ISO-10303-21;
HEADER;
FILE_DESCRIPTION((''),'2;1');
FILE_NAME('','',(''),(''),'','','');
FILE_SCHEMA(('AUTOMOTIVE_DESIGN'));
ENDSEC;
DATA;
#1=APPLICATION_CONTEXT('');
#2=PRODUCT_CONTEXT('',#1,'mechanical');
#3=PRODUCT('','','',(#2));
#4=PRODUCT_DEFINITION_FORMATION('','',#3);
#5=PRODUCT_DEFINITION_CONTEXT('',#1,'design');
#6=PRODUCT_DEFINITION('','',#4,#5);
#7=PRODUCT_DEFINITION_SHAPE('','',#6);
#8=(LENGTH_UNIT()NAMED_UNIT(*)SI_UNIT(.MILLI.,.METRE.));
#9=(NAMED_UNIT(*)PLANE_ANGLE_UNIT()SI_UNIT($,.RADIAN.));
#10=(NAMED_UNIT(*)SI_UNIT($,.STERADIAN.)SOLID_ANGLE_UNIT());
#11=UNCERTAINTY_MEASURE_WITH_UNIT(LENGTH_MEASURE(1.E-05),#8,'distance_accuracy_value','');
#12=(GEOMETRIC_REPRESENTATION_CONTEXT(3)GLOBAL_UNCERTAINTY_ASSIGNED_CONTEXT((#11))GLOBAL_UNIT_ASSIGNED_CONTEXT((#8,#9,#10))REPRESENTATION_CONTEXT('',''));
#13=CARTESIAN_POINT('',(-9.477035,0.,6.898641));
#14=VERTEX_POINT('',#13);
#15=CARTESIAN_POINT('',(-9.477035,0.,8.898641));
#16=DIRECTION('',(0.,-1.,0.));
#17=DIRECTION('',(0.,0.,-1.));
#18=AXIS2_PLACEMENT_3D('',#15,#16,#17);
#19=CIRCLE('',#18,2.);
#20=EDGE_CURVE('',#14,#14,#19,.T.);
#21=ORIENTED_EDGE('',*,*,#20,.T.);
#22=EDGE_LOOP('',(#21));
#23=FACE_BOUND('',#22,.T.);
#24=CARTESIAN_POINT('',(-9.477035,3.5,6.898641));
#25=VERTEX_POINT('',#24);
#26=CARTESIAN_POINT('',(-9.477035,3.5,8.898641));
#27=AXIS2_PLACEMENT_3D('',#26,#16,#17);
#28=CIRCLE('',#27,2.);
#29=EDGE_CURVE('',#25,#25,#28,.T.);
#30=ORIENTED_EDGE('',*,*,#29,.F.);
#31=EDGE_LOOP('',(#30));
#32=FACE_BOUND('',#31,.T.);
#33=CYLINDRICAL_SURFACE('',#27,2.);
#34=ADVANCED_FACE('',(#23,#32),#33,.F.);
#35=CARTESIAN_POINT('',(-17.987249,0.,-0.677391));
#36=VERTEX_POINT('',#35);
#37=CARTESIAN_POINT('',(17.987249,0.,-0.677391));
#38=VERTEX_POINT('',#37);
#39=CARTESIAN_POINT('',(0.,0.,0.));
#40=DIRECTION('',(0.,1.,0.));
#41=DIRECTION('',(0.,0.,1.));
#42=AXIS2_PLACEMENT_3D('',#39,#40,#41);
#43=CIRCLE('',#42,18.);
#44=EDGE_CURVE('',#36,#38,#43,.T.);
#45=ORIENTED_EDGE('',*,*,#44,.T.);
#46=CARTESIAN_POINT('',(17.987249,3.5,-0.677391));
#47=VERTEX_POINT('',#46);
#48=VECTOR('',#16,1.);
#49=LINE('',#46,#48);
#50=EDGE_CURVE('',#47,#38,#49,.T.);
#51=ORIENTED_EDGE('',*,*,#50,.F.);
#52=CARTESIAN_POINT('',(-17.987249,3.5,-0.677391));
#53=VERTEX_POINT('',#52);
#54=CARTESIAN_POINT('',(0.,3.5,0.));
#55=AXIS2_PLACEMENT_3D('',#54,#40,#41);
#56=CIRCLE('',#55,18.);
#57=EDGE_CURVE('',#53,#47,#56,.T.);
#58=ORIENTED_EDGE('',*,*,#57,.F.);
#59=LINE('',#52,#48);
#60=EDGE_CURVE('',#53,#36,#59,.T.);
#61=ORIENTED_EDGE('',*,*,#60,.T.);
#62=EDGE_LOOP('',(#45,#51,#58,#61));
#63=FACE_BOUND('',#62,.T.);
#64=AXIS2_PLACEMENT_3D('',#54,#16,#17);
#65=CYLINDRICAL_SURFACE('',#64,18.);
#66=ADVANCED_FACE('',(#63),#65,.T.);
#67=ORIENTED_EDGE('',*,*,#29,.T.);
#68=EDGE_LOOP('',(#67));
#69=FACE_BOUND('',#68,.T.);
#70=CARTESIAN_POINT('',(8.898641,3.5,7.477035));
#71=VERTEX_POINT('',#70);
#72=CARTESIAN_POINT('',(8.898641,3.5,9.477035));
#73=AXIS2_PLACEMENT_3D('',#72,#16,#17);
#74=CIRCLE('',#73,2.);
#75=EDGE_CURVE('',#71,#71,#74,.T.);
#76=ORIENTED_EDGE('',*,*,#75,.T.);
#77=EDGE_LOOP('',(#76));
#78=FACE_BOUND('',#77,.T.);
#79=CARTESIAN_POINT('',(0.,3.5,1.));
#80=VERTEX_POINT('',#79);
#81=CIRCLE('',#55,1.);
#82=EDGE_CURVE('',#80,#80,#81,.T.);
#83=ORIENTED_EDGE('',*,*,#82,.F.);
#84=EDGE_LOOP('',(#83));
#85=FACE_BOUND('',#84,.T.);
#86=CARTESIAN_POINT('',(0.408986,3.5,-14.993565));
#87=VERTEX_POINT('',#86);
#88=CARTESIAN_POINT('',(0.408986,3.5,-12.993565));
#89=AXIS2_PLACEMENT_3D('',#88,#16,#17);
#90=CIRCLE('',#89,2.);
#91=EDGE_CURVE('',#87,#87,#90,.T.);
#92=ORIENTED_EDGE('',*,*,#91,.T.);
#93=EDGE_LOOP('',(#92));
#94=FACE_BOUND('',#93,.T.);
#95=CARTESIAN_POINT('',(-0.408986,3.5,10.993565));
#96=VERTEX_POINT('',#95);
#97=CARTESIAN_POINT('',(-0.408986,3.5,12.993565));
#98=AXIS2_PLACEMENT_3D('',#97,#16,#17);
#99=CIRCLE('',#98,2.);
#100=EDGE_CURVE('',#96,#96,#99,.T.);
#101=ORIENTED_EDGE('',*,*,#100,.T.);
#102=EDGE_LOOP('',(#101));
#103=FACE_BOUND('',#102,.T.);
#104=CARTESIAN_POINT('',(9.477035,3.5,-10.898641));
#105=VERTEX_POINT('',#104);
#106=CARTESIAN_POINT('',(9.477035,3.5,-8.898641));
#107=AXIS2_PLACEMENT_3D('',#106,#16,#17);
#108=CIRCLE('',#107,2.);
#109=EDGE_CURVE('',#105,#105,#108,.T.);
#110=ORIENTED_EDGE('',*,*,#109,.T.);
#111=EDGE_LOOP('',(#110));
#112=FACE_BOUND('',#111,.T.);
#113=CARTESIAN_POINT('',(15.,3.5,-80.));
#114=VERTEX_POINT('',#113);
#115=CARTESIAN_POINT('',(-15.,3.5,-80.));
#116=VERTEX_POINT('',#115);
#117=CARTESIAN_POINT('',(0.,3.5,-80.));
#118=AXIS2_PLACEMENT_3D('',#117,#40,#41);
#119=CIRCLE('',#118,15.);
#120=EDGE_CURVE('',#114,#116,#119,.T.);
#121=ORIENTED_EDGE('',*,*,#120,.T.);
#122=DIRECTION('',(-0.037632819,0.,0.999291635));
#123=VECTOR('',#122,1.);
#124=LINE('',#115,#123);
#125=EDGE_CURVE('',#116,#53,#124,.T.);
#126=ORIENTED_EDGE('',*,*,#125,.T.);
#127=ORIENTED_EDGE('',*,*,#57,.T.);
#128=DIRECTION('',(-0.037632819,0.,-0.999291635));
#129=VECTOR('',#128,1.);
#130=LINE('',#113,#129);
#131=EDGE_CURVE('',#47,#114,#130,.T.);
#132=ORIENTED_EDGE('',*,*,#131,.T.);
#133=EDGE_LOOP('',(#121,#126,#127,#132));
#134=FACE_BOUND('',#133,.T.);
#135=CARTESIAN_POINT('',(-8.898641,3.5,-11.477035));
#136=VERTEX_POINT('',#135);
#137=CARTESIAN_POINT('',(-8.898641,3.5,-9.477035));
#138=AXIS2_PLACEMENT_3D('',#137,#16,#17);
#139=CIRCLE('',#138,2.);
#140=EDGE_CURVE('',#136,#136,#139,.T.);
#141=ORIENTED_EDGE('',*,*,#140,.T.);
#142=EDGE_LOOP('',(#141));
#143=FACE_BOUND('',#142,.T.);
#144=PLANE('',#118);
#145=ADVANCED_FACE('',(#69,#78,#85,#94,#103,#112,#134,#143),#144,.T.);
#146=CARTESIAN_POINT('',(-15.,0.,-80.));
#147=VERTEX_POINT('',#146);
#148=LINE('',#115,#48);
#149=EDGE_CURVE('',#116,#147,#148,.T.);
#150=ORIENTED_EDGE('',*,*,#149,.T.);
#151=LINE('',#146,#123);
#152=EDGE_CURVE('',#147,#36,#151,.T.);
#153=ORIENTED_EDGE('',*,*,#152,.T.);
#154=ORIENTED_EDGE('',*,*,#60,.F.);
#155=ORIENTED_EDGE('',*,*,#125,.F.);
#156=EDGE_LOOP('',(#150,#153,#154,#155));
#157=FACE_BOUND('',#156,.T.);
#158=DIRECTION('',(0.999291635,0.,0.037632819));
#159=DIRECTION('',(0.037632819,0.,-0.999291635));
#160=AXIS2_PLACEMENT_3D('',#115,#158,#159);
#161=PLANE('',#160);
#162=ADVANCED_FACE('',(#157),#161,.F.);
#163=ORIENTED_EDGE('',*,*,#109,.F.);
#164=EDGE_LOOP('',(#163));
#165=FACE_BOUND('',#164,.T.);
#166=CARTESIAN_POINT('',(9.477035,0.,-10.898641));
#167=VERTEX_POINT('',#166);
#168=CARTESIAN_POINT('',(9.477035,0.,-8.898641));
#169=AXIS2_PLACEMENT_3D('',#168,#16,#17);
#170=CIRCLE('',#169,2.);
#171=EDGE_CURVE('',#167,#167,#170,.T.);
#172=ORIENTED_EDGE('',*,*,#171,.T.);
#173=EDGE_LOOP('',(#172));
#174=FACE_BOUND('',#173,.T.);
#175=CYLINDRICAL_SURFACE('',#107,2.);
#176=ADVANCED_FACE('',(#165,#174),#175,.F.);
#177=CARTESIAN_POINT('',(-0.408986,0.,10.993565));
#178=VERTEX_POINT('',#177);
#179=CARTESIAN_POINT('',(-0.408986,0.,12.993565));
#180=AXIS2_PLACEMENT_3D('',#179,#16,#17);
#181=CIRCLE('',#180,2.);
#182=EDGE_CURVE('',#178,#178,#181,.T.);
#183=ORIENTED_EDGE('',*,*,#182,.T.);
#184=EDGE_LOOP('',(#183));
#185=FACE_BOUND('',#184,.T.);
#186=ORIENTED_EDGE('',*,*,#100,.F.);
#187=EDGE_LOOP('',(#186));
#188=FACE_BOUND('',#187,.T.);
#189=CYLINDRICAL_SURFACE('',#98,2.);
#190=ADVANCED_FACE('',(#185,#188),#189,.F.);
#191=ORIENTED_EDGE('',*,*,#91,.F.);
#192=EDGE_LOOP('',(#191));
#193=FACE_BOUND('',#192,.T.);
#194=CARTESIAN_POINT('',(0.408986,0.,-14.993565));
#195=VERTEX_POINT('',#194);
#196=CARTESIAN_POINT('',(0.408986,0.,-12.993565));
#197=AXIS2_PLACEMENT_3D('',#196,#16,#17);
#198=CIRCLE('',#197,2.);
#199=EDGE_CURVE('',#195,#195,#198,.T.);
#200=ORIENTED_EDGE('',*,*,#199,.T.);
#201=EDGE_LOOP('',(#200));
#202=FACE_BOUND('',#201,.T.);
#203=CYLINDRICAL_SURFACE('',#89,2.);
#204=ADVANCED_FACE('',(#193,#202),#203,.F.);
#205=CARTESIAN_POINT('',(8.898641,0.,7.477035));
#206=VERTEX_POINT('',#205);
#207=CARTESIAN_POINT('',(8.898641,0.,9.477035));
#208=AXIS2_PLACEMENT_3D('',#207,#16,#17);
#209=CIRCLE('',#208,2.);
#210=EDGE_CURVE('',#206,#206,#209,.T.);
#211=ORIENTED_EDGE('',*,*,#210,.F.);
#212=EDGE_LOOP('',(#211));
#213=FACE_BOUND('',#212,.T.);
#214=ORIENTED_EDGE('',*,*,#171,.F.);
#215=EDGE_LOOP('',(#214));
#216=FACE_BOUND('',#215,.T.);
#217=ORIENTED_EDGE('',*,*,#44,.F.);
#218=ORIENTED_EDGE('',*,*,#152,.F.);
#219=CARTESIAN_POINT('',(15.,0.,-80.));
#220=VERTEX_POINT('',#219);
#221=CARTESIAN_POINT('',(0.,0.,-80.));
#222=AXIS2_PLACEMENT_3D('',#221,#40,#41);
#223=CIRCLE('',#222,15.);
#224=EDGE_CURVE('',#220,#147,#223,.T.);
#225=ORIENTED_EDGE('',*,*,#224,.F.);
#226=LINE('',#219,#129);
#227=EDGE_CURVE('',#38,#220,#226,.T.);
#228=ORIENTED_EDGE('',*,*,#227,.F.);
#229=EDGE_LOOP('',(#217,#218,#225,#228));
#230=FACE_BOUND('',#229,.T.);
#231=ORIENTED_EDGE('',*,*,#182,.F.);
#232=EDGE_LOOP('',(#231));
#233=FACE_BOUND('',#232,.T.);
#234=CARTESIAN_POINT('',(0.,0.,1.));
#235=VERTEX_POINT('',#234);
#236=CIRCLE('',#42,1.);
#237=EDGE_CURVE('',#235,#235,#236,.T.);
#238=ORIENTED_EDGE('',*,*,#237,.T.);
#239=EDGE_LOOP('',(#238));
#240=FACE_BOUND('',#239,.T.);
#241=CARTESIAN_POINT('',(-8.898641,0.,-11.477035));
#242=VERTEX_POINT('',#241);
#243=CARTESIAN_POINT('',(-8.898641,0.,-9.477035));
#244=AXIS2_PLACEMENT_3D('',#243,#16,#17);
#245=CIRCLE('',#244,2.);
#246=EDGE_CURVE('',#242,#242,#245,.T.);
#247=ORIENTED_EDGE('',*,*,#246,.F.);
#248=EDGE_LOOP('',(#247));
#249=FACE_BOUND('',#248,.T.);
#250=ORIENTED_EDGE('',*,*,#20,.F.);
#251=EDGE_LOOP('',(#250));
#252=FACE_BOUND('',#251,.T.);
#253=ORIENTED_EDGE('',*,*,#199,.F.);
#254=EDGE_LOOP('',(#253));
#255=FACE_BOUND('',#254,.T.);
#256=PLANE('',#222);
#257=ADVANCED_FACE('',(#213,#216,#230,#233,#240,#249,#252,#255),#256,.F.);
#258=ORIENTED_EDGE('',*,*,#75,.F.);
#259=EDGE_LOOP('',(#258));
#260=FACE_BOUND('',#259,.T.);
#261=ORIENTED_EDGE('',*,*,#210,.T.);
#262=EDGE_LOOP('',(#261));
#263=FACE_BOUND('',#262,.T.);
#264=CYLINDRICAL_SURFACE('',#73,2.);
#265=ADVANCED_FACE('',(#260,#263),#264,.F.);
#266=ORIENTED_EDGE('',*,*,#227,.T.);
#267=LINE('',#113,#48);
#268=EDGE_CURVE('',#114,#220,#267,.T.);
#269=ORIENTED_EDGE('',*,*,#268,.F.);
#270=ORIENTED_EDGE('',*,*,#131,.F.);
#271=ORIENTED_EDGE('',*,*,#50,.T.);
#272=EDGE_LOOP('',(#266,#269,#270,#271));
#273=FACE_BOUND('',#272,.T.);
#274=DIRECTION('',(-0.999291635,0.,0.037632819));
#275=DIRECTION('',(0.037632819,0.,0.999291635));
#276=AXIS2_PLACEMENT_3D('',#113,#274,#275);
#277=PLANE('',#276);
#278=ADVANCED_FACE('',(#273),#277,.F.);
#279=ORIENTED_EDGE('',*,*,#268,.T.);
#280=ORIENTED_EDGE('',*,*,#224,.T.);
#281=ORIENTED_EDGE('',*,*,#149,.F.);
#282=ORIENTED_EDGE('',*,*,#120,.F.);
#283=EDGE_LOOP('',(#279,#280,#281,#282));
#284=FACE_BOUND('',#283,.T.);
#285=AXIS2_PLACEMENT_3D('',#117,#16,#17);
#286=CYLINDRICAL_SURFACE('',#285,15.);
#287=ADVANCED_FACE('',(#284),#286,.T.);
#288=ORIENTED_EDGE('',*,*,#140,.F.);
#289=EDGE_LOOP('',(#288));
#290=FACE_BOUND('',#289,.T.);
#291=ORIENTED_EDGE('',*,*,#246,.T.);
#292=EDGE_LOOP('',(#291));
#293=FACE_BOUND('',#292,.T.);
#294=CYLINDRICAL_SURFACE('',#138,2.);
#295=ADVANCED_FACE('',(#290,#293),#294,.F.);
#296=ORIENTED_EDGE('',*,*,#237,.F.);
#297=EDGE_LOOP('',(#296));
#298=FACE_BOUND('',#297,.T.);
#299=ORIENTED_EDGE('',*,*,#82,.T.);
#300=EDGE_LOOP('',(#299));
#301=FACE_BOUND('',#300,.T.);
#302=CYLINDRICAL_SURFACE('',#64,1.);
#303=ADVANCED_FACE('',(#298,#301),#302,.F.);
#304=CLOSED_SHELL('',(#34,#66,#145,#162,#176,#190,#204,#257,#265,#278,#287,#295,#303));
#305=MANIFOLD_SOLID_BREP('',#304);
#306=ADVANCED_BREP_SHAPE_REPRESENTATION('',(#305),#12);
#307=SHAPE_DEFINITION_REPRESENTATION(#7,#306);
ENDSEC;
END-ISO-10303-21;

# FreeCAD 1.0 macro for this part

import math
import FreeCAD as App
import Part
import Sketcher
Q = App.Units.Quantity

doc = App.newDocument("Part")
params = doc.addObject("Spreadsheet::Sheet", "Params")
for row, (alias, value) in enumerate([
    ("sketch1_diameter", "2 mm"),
    ("sketch1_radius", "18 mm"),
    ("sketch1_radius2", "15 mm"),
    ("pad1_length", "3.5 mm"),
    ("sketch2_diameter", "4 mm"),
], start=1):
    params.set(f"A{row}", alias)
    params.set(f"B{row}", "=" + value)
    params.setAlias(f"B{row}", alias)

body = doc.addObject("PartDesign::Body", "Body")

# Sketch on XZ plane
sketch1 = body.newObject("Sketcher::SketchObject", "Sketch")
sketch1.AttachmentSupport = (doc.getObject("XZ_Plane"), [""])
sketch1.MapMode = "FlatFace"
sketch1.addGeometry([
    Part.LineSegment(App.Vector(-15, -80, 0), App.Vector(-17.987249, -0.677391, 0)),  # 0
    Part.ArcOfCircle(Part.Circle(App.Vector(0, 0, 0), App.Vector(0, 0, 1), 18), math.radians(-2.156711), math.radians(182.156711)),  # 1
    Part.LineSegment(App.Vector(17.987249, -0.677391, 0), App.Vector(15, -80, 0)),  # 2
    Part.ArcOfCircle(Part.Circle(App.Vector(0, -80, 0), App.Vector(0, 0, 1), 15), math.radians(180), math.radians(360)),  # 3
    Part.Circle(App.Vector(0, 0, 0), App.Vector(0, 0, 1), 1),  # 4
], False)
sketch1.addConstraint([
    Sketcher.Constraint("Tangent", 0, 2, 1, 2),
    Sketcher.Constraint("Tangent", 1, 1, 2, 1),
    Sketcher.Constraint("Coincident", 2, 2, 3, 2),
    Sketcher.Constraint("Coincident", 3, 1, 0, 1),
    Sketcher.Constraint("Coincident", 1, 3, -1, 1),
    Sketcher.Constraint("Coincident", 4, 3, -1, 1),
    Sketcher.Constraint("Symmetric", 2, 2, 3, 1, -2),
    Sketcher.Constraint("Horizontal", 3, 3, 2, 2),
    Sketcher.Constraint("Diameter", 4, Q("2 mm")),
    Sketcher.Constraint("Radius", 1, Q("18 mm")),
    Sketcher.Constraint("Radius", 3, Q("15 mm")),
    Sketcher.Constraint("DistanceY", 3, 3, -1, 1, Q("80 mm")),
])
sketch1.setExpression("Constraints[8]", "Params.sketch1_diameter")
sketch1.setExpression("Constraints[9]", "Params.sketch1_radius")
sketch1.setExpression("Constraints[10]", "Params.sketch1_radius2")
pad1 = body.newObject("PartDesign::Pad", "Pad")
pad1.Profile = sketch1
pad1.setExpression("Length", "Params.pad1_length")
pad1.Reversed = True

# Sketch on XZ plane
sketch2 = body.newObject("Sketcher::SketchObject", "Sketch001")
sketch2.AttachmentSupport = (doc.getObject("XZ_Plane"), [""])
sketch2.MapMode = "FlatFace"
sketch2.addGeometry([
    Part.Circle(App.Vector(-0.408986, 12.993565, 0), App.Vector(0, 0, 1), 2),  # 0
    Part.Circle(App.Vector(-9.477035, 8.898641, 0), App.Vector(0, 0, 1), 2),  # 1
    Part.Circle(App.Vector(8.898641, 9.477035, 0), App.Vector(0, 0, 1), 2),  # 2
    Part.Circle(App.Vector(9.477035, -8.898641, 0), App.Vector(0, 0, 1), 2),  # 3
    Part.Circle(App.Vector(0.408986, -12.993565, 0), App.Vector(0, 0, 1), 2),  # 4
    Part.Circle(App.Vector(-8.898641, -9.477035, 0), App.Vector(0, 0, 1), 2),  # 5
], False)
sketch2.addConstraint([
    Sketcher.Constraint("Equal", 0, 1),
    Sketcher.Constraint("Equal", 1, 2),
    Sketcher.Constraint("Equal", 2, 3),
    Sketcher.Constraint("Equal", 3, 4),
    Sketcher.Constraint("Equal", 4, 5),
    Sketcher.Constraint("Symmetric", 1, 3, 3, 3, -1, 1),
    Sketcher.Constraint("Symmetric", 0, 3, 4, 3, -1, 1),
    Sketcher.Constraint("Symmetric", 2, 3, 5, 3, -1, 1),
    Sketcher.Constraint("Diameter", 0, Q("4 mm")),
    Sketcher.Constraint("DistanceY", 4, 3, 2, 3, Q("22.4706 mm")),
    Sketcher.Constraint("DistanceY", -1, 1, 1, 3, Q("8.898641 mm")),
    Sketcher.Constraint("DistanceX", -1, 1, 2, 3, Q("8.898641 mm")),
    Sketcher.Constraint("DistanceX", 1, 3, 0, 3, Q("9.068049 mm")),
    Sketcher.Constraint("DistanceY", 2, 3, 0, 3, Q("3.51653 mm")),
    Sketcher.Constraint("DistanceX", 0, 3, 3, 3, Q("9.886021 mm")),
])
sketch2.setExpression("Constraints[8]", "Params.sketch2_diameter")
pocket1 = body.newObject("PartDesign::Pocket", "Pocket")
pocket1.Profile = sketch2
pocket1.Type = "ThroughAll"

doc.recompute()
